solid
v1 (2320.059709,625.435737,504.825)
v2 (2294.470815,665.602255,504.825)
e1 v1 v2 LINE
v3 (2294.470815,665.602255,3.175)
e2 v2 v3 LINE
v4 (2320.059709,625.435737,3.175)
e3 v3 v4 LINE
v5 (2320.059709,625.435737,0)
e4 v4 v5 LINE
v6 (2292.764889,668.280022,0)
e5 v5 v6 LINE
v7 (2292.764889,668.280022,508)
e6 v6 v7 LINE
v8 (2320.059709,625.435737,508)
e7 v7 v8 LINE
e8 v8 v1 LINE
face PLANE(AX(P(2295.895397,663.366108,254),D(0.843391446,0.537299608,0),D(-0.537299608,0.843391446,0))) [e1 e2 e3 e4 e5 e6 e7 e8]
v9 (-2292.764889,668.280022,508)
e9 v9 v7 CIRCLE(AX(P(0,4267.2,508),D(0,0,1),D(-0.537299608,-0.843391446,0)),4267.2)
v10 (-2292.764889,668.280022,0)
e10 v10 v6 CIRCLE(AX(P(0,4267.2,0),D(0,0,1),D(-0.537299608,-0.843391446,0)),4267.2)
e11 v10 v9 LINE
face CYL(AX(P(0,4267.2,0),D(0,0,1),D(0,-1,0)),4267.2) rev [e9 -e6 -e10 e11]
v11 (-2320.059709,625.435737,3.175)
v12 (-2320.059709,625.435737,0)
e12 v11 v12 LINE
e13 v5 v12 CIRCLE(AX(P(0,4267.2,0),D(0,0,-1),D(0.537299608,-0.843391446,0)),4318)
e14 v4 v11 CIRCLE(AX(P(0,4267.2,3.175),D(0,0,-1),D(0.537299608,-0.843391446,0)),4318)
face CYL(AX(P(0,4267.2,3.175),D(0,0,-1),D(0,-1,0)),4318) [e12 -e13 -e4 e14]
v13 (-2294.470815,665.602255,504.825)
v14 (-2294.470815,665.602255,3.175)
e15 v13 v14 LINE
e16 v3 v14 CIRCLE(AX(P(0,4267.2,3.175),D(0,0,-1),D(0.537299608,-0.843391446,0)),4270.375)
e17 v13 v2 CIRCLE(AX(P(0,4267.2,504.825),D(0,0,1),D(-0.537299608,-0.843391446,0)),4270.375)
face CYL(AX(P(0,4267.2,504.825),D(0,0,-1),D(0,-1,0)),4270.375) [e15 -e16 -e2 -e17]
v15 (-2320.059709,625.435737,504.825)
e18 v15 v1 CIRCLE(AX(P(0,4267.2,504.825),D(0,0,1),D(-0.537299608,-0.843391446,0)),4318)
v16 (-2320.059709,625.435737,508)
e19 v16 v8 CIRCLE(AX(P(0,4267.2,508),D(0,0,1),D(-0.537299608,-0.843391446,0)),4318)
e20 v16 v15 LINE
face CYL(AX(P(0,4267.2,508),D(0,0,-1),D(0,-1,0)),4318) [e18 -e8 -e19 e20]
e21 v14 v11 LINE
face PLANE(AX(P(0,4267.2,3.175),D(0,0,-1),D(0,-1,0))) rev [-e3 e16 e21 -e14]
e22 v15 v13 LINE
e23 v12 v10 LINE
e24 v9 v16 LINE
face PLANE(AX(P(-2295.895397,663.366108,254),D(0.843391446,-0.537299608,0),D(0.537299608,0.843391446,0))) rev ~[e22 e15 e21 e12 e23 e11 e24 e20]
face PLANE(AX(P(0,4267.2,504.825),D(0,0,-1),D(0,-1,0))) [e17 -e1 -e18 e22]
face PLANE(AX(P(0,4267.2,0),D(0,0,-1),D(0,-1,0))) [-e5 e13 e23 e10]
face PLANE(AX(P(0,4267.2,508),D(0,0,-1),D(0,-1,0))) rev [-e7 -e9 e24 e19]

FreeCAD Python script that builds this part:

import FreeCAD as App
import Part
import Sketcher
from FreeCAD import Vector
Q = App.Units.Quantity


def add_polygon(sketch, points):
    """Adds a closed chain of lines whose ends are joined by coincident constraints."""
    first, n = sketch.GeometryCount, len(points)
    for a, b in zip(points, points[1:] + points[:1]):
        sketch.addGeometry(Part.LineSegment(App.Vector(*a, 0), App.Vector(*b, 0)), False)
    for i in range(n):
        sketch.addConstraint(Sketcher.Constraint("Coincident", first + i, 2, first + (i + 1) % n, 1))

doc = App.newDocument("Part")
body = doc.addObject("PartDesign::Body", "Body")

# Sketch on YZ plane
sketch1 = doc.addObject("Sketcher::SketchObject", "Sketch")
body.addObject(sketch1)
sketch1.AttachmentSupport = (doc.YZ_Plane, [""])
sketch1.MapMode = "FlatFace"
add_polygon(sketch1, [(-50.8, 0), (0, 0), (0, 508), (-50.8, 508), (-50.8, 504.8), (-3.2, 504.8), (-3.2, 3.2), (-50.8, 3.2)])  # lines 0-7
sketch1.addGeometry(Part.LineSegment(Vector(4267.2, 0, 0), Vector(4267.2, 508, 0)), True)  # axis
sketch1.addConstraint([
    Sketcher.Constraint("Horizontal", 0),
    Sketcher.Constraint("Vertical", 1),
    Sketcher.Constraint("Horizontal", 2),
    Sketcher.Constraint("Vertical", 3),
    Sketcher.Constraint("Horizontal", 4),
    Sketcher.Constraint("Vertical", 5),
    Sketcher.Constraint("Horizontal", 6),
    Sketcher.Constraint("Vertical", 7),
    Sketcher.Constraint("Vertical", 8),
    Sketcher.Constraint("Coincident", 0, 2, -1, 1),
    Sketcher.Constraint("PointOnObject", 8, 1, -1),
    Sketcher.Constraint("Horizontal", 2, 2, 8, 2),
    Sketcher.Constraint("Vertical", 3, 2, 6, 2),
    Sketcher.Constraint("Equal", 3, 7),
    Sketcher.Constraint("DistanceX", 0, 1, 0, 2, Q("2 in")),
    Sketcher.Constraint("DistanceY", 1, 1, 1, 2, Q("20 in")),
    Sketcher.Constraint("DistanceX", -1, 1, 8, 1, Q("168 in")),
    Sketcher.Constraint("DistanceY", 5, 2, 5, 1, Q("19.75 in")),
    Sketcher.Constraint("DistanceX", 4, 1, 4, 2, Q("1.875 in")),
])
revolution = doc.addObject("PartDesign::Revolution", "Revolution")
body.addObject(revolution)
revolution.Profile = sketch1
revolution.ReferenceAxis = (sketch1, ["Axis0"])
revolution.Angle = 32.5

# Sketch on YZ plane
sketch2 = doc.addObject("Sketcher::SketchObject", "Sketch001")
body.addObject(sketch2)
sketch2.AttachmentSupport = (doc.YZ_Plane, [""])
sketch2.MapMode = "FlatFace"
add_polygon(sketch2, [(-50.8, 0), (0, 0), (0, 508), (-50.8, 508), (-50.8, 504.8), (-3.2, 504.8), (-3.2, 3.2), (-50.8, 3.2)])  # lines 0-7
sketch2.addGeometry(Part.LineSegment(Vector(4267.2, 508, 0), Vector(4267.2, 0, 0)), True)  # axis
sketch2.addConstraint([
    Sketcher.Constraint("Horizontal", 0),
    Sketcher.Constraint("Vertical", 1),
    Sketcher.Constraint("Horizontal", 2),
    Sketcher.Constraint("Vertical", 3),
    Sketcher.Constraint("Horizontal", 4),
    Sketcher.Constraint("Vertical", 5),
    Sketcher.Constraint("Horizontal", 6),
    Sketcher.Constraint("Vertical", 7),
    Sketcher.Constraint("Vertical", 8),
    Sketcher.Constraint("Coincident", 0, 2, -1, 1),
    Sketcher.Constraint("PointOnObject", 8, 2, -1),
    Sketcher.Constraint("Horizontal", 2, 2, 8, 1),
    Sketcher.Constraint("Vertical", 3, 2, 6, 2),
    Sketcher.Constraint("Equal", 3, 7),
    Sketcher.Constraint("DistanceX", 0, 1, 0, 2, Q("2 in")),
    Sketcher.Constraint("DistanceY", 1, 1, 1, 2, Q("20 in")),
    Sketcher.Constraint("DistanceX", -1, 1, 8, 1, Q("168 in")),
    Sketcher.Constraint("DistanceY", 5, 2, 5, 1, Q("19.75 in")),
    Sketcher.Constraint("DistanceX", 4, 1, 4, 2, Q("1.875 in")),
])
revolution2 = doc.addObject("PartDesign::Revolution", "Revolution001")
body.addObject(revolution2)
revolution2.Profile = sketch2
revolution2.ReferenceAxis = (sketch2, ["Axis0"])
revolution2.Angle = 32.5

doc.recompute()
